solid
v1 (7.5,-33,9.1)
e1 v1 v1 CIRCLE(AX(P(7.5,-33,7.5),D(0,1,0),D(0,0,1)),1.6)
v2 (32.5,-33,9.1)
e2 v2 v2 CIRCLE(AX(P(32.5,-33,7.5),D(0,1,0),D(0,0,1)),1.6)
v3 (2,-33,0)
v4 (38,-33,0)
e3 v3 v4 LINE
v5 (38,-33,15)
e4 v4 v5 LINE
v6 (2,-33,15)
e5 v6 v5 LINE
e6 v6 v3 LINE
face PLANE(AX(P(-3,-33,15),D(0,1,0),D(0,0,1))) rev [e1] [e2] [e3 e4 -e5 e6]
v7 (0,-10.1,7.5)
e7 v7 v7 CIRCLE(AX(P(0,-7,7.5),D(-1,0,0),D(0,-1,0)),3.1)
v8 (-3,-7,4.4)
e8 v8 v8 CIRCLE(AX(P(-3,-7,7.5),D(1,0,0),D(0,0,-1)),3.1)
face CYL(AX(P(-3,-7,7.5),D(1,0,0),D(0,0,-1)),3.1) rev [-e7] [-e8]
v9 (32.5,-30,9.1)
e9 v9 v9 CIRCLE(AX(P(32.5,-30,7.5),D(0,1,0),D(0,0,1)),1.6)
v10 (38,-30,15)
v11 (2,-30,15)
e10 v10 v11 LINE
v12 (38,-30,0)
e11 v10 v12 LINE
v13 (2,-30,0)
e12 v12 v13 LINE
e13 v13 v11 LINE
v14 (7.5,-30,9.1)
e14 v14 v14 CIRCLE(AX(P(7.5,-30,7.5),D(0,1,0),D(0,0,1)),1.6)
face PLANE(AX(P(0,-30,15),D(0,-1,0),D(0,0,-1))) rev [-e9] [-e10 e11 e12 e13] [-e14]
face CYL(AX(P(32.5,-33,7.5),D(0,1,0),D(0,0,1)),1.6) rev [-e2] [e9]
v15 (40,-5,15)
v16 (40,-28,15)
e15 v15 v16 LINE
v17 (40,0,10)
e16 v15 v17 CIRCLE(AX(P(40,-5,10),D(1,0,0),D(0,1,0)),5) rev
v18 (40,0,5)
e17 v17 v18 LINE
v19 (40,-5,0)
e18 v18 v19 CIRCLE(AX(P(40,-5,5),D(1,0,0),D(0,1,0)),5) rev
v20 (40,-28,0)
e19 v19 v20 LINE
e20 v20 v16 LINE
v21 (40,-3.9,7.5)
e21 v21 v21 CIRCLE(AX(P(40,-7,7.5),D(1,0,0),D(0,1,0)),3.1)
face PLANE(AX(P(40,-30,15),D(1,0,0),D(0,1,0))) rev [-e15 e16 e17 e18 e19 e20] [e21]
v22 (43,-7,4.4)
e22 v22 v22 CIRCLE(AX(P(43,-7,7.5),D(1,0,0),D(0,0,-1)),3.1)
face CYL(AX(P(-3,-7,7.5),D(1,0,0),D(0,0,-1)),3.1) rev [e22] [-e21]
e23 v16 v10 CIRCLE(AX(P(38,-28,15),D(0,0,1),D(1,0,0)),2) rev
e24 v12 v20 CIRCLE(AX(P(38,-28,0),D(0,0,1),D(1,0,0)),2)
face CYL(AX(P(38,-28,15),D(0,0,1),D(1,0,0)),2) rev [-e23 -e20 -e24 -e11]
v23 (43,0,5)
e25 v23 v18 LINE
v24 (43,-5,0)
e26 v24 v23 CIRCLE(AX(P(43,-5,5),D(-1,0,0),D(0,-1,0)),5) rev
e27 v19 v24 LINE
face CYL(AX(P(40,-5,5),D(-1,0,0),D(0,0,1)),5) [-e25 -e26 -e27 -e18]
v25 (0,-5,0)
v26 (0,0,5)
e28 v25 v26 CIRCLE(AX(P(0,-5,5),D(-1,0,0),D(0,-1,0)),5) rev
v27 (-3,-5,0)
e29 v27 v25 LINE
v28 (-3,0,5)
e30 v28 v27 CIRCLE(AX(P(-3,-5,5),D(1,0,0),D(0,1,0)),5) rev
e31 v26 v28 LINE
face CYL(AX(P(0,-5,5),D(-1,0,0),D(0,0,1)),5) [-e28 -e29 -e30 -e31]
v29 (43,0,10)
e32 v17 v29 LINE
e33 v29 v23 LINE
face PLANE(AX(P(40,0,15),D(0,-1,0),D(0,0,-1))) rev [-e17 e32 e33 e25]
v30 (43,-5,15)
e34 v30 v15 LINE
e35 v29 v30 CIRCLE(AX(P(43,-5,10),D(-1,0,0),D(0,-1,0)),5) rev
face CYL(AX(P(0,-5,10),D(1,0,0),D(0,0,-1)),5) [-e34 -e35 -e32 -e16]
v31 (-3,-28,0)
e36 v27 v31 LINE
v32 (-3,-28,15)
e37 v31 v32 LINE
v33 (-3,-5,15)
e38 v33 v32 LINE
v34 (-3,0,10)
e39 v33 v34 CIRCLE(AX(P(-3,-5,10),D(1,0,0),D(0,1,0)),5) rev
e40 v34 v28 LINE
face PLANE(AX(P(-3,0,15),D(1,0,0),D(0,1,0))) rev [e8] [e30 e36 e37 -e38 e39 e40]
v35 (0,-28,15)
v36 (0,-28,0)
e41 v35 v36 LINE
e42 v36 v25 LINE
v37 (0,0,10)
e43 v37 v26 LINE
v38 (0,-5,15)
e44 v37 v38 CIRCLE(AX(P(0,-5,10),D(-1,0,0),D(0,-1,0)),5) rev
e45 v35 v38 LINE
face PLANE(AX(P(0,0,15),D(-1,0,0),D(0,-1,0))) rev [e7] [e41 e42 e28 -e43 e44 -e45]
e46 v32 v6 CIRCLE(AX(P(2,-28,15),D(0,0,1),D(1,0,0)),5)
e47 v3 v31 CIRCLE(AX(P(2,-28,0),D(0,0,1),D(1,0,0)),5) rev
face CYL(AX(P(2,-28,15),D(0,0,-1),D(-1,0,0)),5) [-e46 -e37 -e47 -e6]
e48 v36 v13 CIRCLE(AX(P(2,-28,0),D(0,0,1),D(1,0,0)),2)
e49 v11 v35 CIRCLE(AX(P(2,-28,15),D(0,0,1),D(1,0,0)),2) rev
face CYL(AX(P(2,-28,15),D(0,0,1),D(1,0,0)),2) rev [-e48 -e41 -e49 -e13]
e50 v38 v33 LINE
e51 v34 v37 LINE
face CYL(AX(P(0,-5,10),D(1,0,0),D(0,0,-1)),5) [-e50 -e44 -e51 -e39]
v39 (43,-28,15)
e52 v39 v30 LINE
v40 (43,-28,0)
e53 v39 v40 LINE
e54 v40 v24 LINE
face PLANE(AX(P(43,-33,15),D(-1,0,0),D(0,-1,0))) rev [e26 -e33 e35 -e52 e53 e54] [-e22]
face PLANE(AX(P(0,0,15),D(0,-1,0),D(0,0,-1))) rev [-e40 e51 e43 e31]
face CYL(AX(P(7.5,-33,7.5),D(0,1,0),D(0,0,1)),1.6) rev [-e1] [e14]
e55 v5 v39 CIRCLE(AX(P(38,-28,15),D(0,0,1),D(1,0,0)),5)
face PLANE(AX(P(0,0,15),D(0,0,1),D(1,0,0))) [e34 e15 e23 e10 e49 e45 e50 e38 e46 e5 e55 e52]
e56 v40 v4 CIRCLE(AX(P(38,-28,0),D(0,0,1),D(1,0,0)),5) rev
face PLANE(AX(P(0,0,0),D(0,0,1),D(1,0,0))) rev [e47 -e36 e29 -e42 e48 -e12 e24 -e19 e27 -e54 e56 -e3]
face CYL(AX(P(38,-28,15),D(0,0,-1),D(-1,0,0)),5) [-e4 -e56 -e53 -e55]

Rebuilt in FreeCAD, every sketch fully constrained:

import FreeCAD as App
import Part
import Sketcher


def edges_at(feature, points):
    """Names of the edges that pass closest to the given points."""
    edges = feature.Shape.Edges
    near = lambda p: min(range(len(edges)), key=lambda i: edges[i].distToShape(Part.Vertex(*p))[0])
    return sorted({f"Edge{near(p) + 1}" for p in points})


def add_polygon(sketch, points):
    """Adds a closed chain of lines whose ends are joined by coincident constraints."""
    first, n = sketch.GeometryCount, len(points)
    for a, b in zip(points, points[1:] + points[:1]):
        sketch.addGeometry(Part.LineSegment(App.Vector(*a, 0), App.Vector(*b, 0)), False)
    for i in range(n):
        sketch.addConstraint(Sketcher.Constraint("Coincident", first + i, 2, first + (i + 1) % n, 1))

doc = App.newDocument("Part")
params = doc.addObject("Spreadsheet::Sheet", "Params")
for row, (alias, value) in enumerate([
    ("sketch1_width", "3 mm"),
    ("sketch1_width2", "46 mm"),
    ("sketch1_height", "30 mm"),
    ("sketch1_height2", "33 mm"),
    ("pad1_length", "15 mm"),
    ("sketch2_diameter", "6.2 mm"),
    ("fillet_radius", "5 mm"),
    ("sketch3_diameter", "3.2 mm"),
    ("fillet2_radius", "2 mm"),
    ("fillet3_radius", "5 mm"),
], start=1):
    params.set(f"A{row}", alias)
    params.set(f"B{row}", "=" + value)
    params.setAlias(f"B{row}", alias)

body = doc.addObject("PartDesign::Body", "Body")

sketch1 = body.newObject("Sketcher::SketchObject", "Sketch")
sketch1.AttachmentSupport = (doc.getObject("XY_Plane"), [""])
sketch1.MapMode = "FlatFace"
add_polygon(sketch1, [(0, -30), (0, 0), (-3, 0), (-3, -33), (43, -33), (43, 0), (40, 0), (40, -30)])
sketch1.addConstraint([
    Sketcher.Constraint("Vertical", 0),
    Sketcher.Constraint("Horizontal", 1),
    Sketcher.Constraint("Vertical", 2),
    Sketcher.Constraint("Horizontal", 3),
    Sketcher.Constraint("Vertical", 4),
    Sketcher.Constraint("Horizontal", 5),
    Sketcher.Constraint("Vertical", 6),
    Sketcher.Constraint("Horizontal", 7),
    Sketcher.Constraint("Coincident", 0, 2, -1, 1),
    Sketcher.Constraint("PointOnObject", 4, 2, -1),
    Sketcher.Constraint("Equal", 1, 5),
    Sketcher.Constraint("DistanceX", 1, 2, 1, 1, 3.0),
    Sketcher.Constraint("DistanceX", 3, 1, 3, 2, 46.0),
    Sketcher.Constraint("DistanceY", 0, 1, 0, 2, 30.0),
    Sketcher.Constraint("DistanceY", 2, 2, 2, 1, 33.0),
])
sketch1.setExpression("Constraints[19]", "Params.sketch1_width")
sketch1.setExpression("Constraints[20]", "Params.sketch1_width2")
sketch1.setExpression("Constraints[21]", "Params.sketch1_height")
sketch1.setExpression("Constraints[22]", "Params.sketch1_height2")
pad1 = body.newObject("PartDesign::Pad", "Pad")
pad1.Profile = sketch1
pad1.setExpression("Length", "Params.pad1_length")

sketch2 = body.newObject("Sketcher::SketchObject", "Sketch001")
sketch2.AttachmentSupport = (doc.getObject("YZ_Plane"), [""])
sketch2.MapMode = "FlatFace"
sketch2.AttachmentOffset = App.Placement(App.Vector(0, 0, 43), App.Rotation())
sketch2.addGeometry(Part.Circle(App.Vector(-7, 7.5, 0), App.Vector(0, 0, 1), 3.1), False)
sketch2.addConstraint([
    Sketcher.Constraint("Diameter", 0, 6.2),
    Sketcher.Constraint("DistanceX", 0, 3, -1, 1, 7.0),
    Sketcher.Constraint("DistanceY", -1, 1, 0, 3, 7.5),
])
sketch2.setExpression("Constraints[0]", "Params.sketch2_diameter")
pocket1 = body.newObject("PartDesign::Pocket", "Pocket")
pocket1.Profile = sketch2
pocket1.Type = "ThroughAll"
doc.recompute()

fillet = body.newObject("PartDesign::Fillet", "Fillet")
fillet.Base = (pocket1, edges_at(pocket1, [
    (-1.5, 0, 0),
    (41.5, 0, 15),
    (-1.5, 0, 15),
    (41.5, 0, 0),
]))
fillet.setExpression("Radius", "Params.fillet_radius")

sketch3 = body.newObject("Sketcher::SketchObject", "Sketch002")
sketch3.AttachmentSupport = (doc.getObject("XZ_Plane"), [""])
sketch3.MapMode = "FlatFace"
sketch3.AttachmentOffset = App.Placement(App.Vector(0, 0, 30), App.Rotation())
sketch3.addGeometry([
    Part.Circle(App.Vector(7.5, 7.5, 0), App.Vector(0, 0, 1), 1.6),
    Part.Circle(App.Vector(32.5, 7.5, 0), App.Vector(0, 0, 1), 1.6),
], False)
sketch3.addConstraint([
    Sketcher.Constraint("Equal", 0, 1),
    Sketcher.Constraint("Horizontal", 0, 3, 1, 3),
    Sketcher.Constraint("Diameter", 0, 3.2),
    Sketcher.Constraint("DistanceX", 0, 3, 1, 3, 25.0),
    Sketcher.Constraint("DistanceX", -1, 1, 0, 3, 7.5),
    Sketcher.Constraint("DistanceY", -1, 1, 0, 3, 7.5),
])
sketch3.setExpression("Constraints[2]", "Params.sketch3_diameter")
pocket2 = body.newObject("PartDesign::Pocket", "Pocket001")
pocket2.Profile = sketch3
pocket2.Type = "ThroughAll"
pocket2.Reversed = True
doc.recompute()

fillet2 = body.newObject("PartDesign::Fillet", "Fillet001")
fillet2.Base = (pocket2, edges_at(pocket2, [(0, -30, 7.5), (40, -30, 7.5)]))
fillet2.setExpression("Radius", "Params.fillet2_radius")
doc.recompute()

fillet3 = body.newObject("PartDesign::Fillet", "Fillet002")
fillet3.Base = (fillet2, edges_at(fillet2, [(43, -33, 7.5), (-3, -33, 7.5)]))
fillet3.setExpression("Radius", "Params.fillet3_radius")

doc.recompute()
